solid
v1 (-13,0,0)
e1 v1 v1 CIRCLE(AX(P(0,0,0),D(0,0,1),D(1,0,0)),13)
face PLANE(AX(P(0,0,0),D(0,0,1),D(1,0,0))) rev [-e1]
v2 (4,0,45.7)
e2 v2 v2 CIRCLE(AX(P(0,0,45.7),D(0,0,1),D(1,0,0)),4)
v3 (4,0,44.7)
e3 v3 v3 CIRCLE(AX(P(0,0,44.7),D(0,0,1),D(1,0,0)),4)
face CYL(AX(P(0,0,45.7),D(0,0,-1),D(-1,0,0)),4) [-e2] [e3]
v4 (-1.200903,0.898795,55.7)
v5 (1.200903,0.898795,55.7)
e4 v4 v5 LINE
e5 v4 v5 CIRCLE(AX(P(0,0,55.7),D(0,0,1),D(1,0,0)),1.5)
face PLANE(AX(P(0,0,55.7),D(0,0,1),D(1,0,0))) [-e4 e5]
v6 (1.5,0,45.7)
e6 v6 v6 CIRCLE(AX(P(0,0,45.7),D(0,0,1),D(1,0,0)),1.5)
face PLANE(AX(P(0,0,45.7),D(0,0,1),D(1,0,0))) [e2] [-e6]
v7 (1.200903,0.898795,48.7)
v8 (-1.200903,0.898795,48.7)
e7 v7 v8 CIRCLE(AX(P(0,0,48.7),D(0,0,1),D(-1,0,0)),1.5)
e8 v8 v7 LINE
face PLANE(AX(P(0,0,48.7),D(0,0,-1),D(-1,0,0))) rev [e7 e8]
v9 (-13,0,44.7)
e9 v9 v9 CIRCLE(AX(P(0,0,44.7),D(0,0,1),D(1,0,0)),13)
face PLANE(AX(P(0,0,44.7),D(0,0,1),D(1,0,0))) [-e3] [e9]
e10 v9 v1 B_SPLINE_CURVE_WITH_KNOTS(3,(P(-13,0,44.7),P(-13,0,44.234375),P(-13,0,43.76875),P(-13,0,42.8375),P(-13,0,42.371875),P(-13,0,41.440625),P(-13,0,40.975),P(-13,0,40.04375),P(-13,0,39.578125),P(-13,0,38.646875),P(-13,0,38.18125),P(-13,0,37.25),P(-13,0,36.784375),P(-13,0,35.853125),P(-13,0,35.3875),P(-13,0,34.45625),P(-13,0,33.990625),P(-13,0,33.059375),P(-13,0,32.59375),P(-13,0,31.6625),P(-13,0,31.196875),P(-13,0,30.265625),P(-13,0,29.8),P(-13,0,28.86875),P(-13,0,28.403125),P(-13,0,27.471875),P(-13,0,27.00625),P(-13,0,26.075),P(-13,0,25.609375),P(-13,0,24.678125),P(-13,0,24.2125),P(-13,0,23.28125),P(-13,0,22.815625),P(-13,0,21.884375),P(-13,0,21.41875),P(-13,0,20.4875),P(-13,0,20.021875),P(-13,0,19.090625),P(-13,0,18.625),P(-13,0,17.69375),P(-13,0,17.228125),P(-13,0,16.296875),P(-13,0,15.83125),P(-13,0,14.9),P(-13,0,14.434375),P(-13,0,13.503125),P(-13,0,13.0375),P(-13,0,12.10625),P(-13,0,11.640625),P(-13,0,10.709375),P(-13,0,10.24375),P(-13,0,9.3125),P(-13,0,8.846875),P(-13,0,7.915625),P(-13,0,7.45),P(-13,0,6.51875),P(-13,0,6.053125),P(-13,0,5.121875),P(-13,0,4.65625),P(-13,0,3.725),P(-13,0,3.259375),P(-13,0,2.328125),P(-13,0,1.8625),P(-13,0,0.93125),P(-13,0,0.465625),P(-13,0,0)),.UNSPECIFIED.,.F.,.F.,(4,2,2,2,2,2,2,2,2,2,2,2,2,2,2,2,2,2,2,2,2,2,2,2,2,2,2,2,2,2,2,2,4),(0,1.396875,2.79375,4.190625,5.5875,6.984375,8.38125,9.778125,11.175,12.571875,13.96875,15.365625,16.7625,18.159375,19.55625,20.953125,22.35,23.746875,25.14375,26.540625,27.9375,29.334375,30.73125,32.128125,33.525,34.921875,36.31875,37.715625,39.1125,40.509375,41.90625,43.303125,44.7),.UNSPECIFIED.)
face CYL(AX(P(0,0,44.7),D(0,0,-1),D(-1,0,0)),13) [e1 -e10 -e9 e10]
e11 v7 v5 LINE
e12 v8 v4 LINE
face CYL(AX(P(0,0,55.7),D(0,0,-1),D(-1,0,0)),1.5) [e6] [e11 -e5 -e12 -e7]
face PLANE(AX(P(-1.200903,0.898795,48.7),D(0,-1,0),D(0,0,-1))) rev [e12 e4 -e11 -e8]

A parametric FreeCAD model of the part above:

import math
import FreeCAD as App
import Part
import Sketcher
from FreeCAD import Vector

doc = App.newDocument("Part")
params = doc.addObject("Spreadsheet::Sheet", "Params")
for row, (alias, value) in enumerate([
    ("sketch1_diameter", "26 mm"),
    ("pad1_length", "44.7 mm"),
    ("sketch2_diameter", "8 mm"),
    ("pad2_length", "1 mm"),
    ("sketch3_diameter", "3 mm"),
    ("pad3_length", "10 mm"),
    ("sketch4_radius", "1.5 mm"),
    ("pocket1_length", "7 mm"),
], start=1):
    params.set(f"A{row}", alias)
    params.set(f"B{row}", "=" + value)
    params.setAlias(f"B{row}", alias)

body = doc.addObject("PartDesign::Body", "Body")

# Sketch on XY plane
sketch1 = doc.addObject("Sketcher::SketchObject", "Sketch")
body.addObject(sketch1)
sketch1.AttachmentSupport = (doc.XY_Plane, [""])
sketch1.MapMode = "FlatFace"
sketch1.addGeometry(Part.Circle(Vector(0, 0, 0), Vector(0, 0, 1), 13), False)
sketch1.addConstraint(Sketcher.Constraint("Coincident", 0, 3, -1, 1))
sketch1.addConstraint(Sketcher.Constraint("Diameter", 0, 26.0))
sketch1.setExpression("Constraints[1]", "Params.sketch1_diameter")
pad1 = doc.addObject("PartDesign::Pad", "Pad")
body.addObject(pad1)
pad1.Profile = sketch1
pad1.setExpression("Length", "Params.pad1_length")

# Sketch on XY plane
sketch2 = doc.addObject("Sketcher::SketchObject", "Sketch001")
body.addObject(sketch2)
sketch2.AttachmentSupport = (doc.XY_Plane, [""])
sketch2.MapMode = "FlatFace"
sketch2.AttachmentOffset = App.Placement(Vector(0, 0, 44.7), App.Rotation())
sketch2.addGeometry(Part.Circle(Vector(0, 0, 0), Vector(0, 0, 1), 4), False)
sketch2.addConstraint(Sketcher.Constraint("Coincident", 0, 3, -1, 1))
sketch2.addConstraint(Sketcher.Constraint("Diameter", 0, 8.0))
sketch2.setExpression("Constraints[1]", "Params.sketch2_diameter")
pad2 = doc.addObject("PartDesign::Pad", "Pad001")
body.addObject(pad2)
pad2.Profile = sketch2
pad2.setExpression("Length", "Params.pad2_length")

# Sketch on XY plane
sketch3 = doc.addObject("Sketcher::SketchObject", "Sketch002")
body.addObject(sketch3)
sketch3.AttachmentSupport = (doc.XY_Plane, [""])
sketch3.MapMode = "FlatFace"
sketch3.AttachmentOffset = App.Placement(Vector(0, 0, 45.7), App.Rotation())
sketch3.addGeometry(Part.Circle(Vector(0, 0, 0), Vector(0, 0, 1), 1.5), False)
sketch3.addConstraint(Sketcher.Constraint("Coincident", 0, 3, -1, 1))
sketch3.addConstraint(Sketcher.Constraint("Diameter", 0, 3.0))
sketch3.setExpression("Constraints[1]", "Params.sketch3_diameter")
pad3 = doc.addObject("PartDesign::Pad", "Pad002")
body.addObject(pad3)
pad3.Profile = sketch3
pad3.setExpression("Length", "Params.pad3_length")

# Sketch on XY plane
sketch4 = doc.addObject("Sketcher::SketchObject", "Sketch003")
body.addObject(sketch4)
sketch4.AttachmentSupport = (doc.XY_Plane, [""])
sketch4.MapMode = "FlatFace"
sketch4.AttachmentOffset = App.Placement(Vector(0, 0, 48.7), App.Rotation())
sketch4.addGeometry(Part.LineSegment(Vector(-1.200903, 0.898795, 0), Vector(1.200903, 0.898795, 0)), False)
sketch4.addGeometry(Part.ArcOfCircle(Part.Circle(Vector(0, 0, 0), Vector(0, 0, 1), 1.5), math.radians(36.812365), math.radians(143.187635)), False)
sketch4.addConstraint(Sketcher.Constraint("Coincident", 0, 1, 1, 2))
sketch4.addConstraint(Sketcher.Constraint("Coincident", 1, 1, 0, 2))
sketch4.addConstraint(Sketcher.Constraint("Horizontal", 0))
sketch4.addConstraint(Sketcher.Constraint("Coincident", 1, 3, -1, 1))
sketch4.addConstraint(Sketcher.Constraint("Radius", 1, 1.5))
sketch4.addConstraint(Sketcher.Constraint("DistanceX", 0, 1, 0, 2, 2.401806))
sketch4.setExpression("Constraints[4]", "Params.sketch4_radius")
pocket1 = doc.addObject("PartDesign::Pocket", "Pocket")
body.addObject(pocket1)
pocket1.Profile = sketch4
pocket1.setExpression("Length", "Params.pocket1_length")
pocket1.Reversed = True

doc.recompute()
